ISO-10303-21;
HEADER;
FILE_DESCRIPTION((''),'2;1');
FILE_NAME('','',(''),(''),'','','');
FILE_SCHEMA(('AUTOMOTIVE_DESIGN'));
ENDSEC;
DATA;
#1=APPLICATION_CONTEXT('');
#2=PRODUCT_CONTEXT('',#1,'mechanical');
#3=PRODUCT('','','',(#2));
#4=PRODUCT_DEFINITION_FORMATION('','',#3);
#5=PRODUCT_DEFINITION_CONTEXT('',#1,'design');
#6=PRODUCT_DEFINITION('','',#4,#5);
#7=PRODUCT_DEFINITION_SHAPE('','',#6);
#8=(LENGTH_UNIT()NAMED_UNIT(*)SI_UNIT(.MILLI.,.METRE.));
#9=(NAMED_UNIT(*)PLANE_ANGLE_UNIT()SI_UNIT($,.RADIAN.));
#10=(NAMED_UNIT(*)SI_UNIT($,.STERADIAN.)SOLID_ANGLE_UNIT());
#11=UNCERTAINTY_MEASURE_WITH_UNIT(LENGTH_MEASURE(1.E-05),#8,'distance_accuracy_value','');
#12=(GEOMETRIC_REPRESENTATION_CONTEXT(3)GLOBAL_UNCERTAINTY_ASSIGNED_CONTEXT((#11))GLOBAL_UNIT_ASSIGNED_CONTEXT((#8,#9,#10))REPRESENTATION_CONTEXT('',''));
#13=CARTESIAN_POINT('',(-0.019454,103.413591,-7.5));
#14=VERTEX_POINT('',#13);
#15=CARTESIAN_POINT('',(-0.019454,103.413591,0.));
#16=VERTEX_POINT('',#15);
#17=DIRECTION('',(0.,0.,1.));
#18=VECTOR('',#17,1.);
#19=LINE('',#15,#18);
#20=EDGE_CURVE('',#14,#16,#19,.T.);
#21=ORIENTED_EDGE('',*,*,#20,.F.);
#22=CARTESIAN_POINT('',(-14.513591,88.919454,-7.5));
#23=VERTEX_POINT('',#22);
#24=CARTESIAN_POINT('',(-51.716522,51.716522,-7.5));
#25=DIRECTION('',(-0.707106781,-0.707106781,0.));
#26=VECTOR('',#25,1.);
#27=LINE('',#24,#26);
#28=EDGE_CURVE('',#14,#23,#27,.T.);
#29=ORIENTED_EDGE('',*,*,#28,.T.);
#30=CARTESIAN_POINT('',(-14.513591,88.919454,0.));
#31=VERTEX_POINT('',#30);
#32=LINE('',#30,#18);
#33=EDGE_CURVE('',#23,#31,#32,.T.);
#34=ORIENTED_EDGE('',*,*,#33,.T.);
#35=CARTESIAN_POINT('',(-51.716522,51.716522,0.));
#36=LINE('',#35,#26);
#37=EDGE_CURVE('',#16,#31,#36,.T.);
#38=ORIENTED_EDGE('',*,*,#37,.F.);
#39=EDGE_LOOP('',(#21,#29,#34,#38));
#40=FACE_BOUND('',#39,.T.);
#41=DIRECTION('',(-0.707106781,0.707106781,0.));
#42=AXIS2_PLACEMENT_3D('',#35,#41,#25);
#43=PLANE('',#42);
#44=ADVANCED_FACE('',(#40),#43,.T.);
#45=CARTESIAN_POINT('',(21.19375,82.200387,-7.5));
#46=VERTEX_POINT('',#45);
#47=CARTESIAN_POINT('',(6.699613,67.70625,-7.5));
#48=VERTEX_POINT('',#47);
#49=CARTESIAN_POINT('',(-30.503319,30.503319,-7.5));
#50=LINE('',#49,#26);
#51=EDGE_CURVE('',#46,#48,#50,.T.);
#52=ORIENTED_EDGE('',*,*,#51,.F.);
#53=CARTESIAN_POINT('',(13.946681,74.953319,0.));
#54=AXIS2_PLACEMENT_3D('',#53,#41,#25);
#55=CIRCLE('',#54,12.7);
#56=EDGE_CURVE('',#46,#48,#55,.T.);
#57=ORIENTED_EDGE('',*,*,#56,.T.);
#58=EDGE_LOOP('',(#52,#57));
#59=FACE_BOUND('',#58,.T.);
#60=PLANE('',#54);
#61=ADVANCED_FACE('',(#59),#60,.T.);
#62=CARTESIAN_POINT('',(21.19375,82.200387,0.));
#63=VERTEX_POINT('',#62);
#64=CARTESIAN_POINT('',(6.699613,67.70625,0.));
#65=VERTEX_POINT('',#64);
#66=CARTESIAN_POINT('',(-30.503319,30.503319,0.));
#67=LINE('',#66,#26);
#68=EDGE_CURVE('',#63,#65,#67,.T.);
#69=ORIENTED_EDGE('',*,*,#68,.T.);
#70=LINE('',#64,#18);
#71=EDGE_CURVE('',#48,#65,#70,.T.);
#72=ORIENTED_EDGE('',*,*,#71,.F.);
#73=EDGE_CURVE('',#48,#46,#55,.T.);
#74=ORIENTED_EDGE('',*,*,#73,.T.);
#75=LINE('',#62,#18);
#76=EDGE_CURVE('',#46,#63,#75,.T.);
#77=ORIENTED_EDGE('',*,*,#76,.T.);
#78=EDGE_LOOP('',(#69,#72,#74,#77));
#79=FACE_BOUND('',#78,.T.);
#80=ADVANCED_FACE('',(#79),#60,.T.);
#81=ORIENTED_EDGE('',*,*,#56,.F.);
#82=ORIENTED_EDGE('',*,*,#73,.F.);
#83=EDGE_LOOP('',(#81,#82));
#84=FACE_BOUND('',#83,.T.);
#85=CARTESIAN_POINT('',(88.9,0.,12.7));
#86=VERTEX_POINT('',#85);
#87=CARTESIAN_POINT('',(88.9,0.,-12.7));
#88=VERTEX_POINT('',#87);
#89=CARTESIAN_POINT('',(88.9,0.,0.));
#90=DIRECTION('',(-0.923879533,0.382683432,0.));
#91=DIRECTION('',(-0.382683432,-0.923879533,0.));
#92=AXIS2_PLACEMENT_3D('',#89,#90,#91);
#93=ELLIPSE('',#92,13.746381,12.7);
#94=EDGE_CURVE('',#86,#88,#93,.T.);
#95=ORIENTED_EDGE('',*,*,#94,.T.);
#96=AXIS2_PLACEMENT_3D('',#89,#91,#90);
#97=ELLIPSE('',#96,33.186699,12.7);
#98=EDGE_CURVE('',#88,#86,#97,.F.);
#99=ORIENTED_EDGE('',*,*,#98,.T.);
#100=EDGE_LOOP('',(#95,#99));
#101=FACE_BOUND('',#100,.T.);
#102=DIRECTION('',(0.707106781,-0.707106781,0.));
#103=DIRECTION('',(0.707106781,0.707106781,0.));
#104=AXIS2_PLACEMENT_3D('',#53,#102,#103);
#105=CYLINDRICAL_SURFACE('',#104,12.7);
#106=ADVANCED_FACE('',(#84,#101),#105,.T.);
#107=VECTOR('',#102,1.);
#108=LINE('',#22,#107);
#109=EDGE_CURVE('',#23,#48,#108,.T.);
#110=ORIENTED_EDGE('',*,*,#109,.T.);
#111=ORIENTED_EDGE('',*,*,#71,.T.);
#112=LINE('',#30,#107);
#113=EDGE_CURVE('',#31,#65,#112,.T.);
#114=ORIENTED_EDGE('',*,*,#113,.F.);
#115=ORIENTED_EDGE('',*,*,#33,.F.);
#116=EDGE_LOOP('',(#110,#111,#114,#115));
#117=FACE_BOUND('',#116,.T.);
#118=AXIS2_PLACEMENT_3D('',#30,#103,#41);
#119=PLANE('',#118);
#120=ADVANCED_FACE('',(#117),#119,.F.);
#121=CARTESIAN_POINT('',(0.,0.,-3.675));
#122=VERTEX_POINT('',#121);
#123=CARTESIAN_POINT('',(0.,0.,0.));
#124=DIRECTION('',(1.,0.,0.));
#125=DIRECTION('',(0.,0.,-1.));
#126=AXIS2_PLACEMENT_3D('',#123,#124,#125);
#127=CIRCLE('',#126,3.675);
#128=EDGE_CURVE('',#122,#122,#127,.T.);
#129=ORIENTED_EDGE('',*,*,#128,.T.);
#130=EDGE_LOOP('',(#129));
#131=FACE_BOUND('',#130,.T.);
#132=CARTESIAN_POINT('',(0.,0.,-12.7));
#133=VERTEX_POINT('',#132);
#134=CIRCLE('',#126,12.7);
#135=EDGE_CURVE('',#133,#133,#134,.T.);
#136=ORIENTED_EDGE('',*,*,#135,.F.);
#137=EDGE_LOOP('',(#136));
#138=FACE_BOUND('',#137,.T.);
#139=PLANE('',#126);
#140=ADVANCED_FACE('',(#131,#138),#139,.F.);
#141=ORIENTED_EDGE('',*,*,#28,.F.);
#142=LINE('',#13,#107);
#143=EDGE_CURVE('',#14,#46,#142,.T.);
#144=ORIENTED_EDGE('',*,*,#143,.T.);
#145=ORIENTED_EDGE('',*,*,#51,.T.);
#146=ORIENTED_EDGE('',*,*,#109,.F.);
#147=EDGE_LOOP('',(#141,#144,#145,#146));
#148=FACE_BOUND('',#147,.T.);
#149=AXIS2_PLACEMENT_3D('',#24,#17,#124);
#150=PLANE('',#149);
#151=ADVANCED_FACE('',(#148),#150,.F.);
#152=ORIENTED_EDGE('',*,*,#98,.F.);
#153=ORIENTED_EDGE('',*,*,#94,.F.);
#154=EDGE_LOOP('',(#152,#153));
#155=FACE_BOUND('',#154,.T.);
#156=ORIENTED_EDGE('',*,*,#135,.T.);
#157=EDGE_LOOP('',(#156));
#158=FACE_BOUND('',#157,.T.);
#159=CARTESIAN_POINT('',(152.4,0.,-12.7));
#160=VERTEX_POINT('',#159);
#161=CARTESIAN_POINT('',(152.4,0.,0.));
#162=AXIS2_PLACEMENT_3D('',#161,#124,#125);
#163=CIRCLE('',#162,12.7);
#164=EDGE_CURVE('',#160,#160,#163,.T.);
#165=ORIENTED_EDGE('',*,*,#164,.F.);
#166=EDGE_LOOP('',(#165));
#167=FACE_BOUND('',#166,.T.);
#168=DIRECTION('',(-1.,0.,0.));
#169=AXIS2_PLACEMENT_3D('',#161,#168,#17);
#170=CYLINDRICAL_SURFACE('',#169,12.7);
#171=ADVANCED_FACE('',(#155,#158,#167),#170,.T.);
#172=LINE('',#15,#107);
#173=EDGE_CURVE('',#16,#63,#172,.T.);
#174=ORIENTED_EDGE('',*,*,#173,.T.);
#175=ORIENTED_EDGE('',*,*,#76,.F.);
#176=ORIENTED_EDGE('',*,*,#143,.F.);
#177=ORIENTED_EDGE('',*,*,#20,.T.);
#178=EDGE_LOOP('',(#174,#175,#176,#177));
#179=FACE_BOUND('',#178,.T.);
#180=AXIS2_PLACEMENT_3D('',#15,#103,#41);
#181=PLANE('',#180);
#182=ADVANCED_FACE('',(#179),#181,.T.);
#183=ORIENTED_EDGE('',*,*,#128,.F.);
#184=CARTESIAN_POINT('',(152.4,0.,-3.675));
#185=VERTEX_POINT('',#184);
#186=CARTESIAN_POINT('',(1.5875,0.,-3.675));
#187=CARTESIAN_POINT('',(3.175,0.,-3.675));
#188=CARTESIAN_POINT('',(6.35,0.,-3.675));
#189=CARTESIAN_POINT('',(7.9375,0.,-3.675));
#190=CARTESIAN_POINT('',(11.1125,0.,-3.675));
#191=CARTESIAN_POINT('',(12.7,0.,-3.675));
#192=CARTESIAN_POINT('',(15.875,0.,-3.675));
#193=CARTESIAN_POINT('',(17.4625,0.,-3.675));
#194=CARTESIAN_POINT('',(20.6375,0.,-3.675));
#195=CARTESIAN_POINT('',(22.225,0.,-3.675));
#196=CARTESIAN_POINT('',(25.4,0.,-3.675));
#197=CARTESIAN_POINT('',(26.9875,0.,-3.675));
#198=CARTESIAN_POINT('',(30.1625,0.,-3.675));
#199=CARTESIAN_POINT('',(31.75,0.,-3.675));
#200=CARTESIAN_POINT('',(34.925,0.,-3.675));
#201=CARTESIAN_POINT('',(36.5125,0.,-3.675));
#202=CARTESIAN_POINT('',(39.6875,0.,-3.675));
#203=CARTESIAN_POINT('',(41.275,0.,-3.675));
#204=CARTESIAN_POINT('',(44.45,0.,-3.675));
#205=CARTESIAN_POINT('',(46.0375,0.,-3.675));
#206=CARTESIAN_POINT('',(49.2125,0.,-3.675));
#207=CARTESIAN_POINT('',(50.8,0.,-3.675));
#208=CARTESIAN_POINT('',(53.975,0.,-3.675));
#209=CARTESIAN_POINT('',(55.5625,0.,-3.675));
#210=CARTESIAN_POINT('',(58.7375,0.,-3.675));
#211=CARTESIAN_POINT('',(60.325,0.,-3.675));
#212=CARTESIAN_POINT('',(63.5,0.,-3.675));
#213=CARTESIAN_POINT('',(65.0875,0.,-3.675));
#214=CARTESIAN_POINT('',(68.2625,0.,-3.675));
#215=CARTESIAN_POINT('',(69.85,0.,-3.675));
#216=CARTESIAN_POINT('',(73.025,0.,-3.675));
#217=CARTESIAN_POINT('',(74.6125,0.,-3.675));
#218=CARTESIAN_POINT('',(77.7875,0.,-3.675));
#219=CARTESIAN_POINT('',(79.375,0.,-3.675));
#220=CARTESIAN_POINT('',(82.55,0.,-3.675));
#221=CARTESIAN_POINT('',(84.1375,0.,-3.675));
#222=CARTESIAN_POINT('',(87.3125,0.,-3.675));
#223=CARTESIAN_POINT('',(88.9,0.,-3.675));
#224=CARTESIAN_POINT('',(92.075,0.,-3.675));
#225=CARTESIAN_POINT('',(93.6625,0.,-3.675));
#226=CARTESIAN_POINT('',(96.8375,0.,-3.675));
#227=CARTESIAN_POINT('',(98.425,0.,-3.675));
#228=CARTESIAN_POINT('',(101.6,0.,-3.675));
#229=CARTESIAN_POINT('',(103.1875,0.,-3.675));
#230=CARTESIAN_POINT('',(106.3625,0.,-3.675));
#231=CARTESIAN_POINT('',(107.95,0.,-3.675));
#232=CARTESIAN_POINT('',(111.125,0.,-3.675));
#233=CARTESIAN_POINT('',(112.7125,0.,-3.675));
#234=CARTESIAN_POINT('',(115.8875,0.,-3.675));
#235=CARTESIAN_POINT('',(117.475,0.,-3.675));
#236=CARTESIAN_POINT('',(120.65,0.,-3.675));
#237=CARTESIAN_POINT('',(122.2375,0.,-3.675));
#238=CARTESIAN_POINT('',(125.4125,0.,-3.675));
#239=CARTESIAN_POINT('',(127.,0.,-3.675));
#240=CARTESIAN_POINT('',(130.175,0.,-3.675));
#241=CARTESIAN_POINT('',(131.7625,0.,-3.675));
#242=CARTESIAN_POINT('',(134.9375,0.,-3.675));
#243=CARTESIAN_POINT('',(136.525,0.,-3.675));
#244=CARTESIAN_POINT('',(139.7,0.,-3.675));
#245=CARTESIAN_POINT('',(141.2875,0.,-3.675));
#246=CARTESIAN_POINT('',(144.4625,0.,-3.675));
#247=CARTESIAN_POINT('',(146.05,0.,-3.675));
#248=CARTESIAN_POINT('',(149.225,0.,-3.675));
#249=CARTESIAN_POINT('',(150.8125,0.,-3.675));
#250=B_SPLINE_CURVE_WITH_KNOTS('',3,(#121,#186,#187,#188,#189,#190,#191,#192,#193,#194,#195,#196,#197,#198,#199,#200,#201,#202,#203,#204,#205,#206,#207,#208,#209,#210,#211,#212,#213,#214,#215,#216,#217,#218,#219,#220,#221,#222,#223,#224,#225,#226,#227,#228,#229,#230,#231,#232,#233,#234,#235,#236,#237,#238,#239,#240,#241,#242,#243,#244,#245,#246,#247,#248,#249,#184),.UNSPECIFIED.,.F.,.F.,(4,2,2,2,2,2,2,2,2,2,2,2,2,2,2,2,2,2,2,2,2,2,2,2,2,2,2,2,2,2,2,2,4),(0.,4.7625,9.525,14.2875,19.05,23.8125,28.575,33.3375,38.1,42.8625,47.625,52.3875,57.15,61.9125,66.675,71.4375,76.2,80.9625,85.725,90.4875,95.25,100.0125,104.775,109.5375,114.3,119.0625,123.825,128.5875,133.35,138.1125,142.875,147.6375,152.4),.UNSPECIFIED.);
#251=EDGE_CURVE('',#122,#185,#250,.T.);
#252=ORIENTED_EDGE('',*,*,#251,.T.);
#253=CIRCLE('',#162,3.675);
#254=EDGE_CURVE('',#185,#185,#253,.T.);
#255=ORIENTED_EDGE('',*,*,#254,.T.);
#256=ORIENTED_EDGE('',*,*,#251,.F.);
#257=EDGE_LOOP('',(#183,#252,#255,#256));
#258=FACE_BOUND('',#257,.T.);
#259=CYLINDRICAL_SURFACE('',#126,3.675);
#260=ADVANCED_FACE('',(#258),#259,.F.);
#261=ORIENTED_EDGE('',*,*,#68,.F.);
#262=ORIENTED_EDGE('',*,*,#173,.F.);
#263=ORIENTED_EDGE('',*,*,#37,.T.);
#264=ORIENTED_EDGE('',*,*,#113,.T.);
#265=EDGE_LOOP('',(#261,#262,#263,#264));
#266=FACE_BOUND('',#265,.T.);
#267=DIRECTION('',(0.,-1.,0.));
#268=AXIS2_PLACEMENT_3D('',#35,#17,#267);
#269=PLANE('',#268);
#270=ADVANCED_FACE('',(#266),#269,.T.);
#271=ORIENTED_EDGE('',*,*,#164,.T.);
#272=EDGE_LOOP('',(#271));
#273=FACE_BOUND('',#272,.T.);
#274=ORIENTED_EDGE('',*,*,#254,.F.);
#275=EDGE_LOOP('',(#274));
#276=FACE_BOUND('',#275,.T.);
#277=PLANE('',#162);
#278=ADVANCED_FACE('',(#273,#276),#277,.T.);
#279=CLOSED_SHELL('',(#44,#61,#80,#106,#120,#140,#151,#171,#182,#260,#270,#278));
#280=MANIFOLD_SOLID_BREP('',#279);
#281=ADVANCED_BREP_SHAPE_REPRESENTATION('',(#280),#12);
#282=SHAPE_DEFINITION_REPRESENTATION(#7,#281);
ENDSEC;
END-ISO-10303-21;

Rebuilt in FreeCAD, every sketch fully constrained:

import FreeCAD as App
import Part
import Sketcher

V = App.Vector

doc = App.newDocument("Part")
params = doc.addObject("Spreadsheet::Sheet", "Params")
for row, (alias, value) in enumerate([
    ("sketch1_diameter", "25.4 mm"),
    ("pad1_length", "152.4 mm"),
    ("sketch2_diameter", "25.4 mm"),
    ("pad2_length", "106 mm"),
    ("sketch3_width", "7.5 mm"),
    ("pad3_length", "30 mm"),
    ("sketch4_diameter", "7.35 mm"),
    ("pocket1_length", "152.4 mm"),
], start=1):
    params.set(f"A{row}", alias)
    params.set(f"B{row}", "=" + value)
    params.setAlias(f"B{row}", alias)

body = doc.addObject("PartDesign::Body", "Body")

sketch1 = body.newObject("Sketcher::SketchObject", "Sketch")
sketch1.AttachmentSupport = (doc.getObject("YZ_Plane"), [""])
sketch1.MapMode = "FlatFace"
sketch1.addGeometry(Part.Circle(V(0, 0, 0), V(0, 0, 1), 13), False)
sketch1.addConstraint([
    Sketcher.Constraint("Coincident", 0, 3, -1, 1),
    Sketcher.Constraint("Diameter", 0, 25.4),
])
sketch1.setExpression("Constraints[1]", "Params.sketch1_diameter")
pad1 = body.newObject("PartDesign::Pad", "Pad")
pad1.Profile = sketch1
pad1.setExpression("Length", "Params.pad1_length")

sketch2 = body.newObject("Sketcher::SketchObject", "Sketch001")
sketch2.Placement = App.Placement(V(44.45, -44.45, 0), App.Rotation(V(0.707106781, 0.707106781, 0), V(0, 0, -0.999999999), V(-0.707106781, 0.707106781, 0), "ZXY"))
sketch2.addGeometry(Part.Circle(V(63, 0, 0), V(0, 0, 1), 13), False)
sketch2.addConstraint([
    Sketcher.Constraint("PointOnObject", 0, 3, -1),
    Sketcher.Constraint("Diameter", 0, 25.4),
    Sketcher.Constraint("DistanceX", -1, 1, 0, 3, 62.861793),
])
sketch2.setExpression("Constraints[1]", "Params.sketch2_diameter")
pad2 = body.newObject("PartDesign::Pad", "Pad001")
pad2.Profile = sketch2
pad2.setExpression("Length", "Params.pad2_length")

sketch3 = body.newObject("Sketcher::SketchObject", "Sketch002")
sketch3.Placement = App.Placement(V(-30.503319, 30.503319, 0), App.Rotation(V(0, 0, 1), V(0.707106781, 0.707106781, 0), V(-0.707106781, 0.707106781, 0), "ZXY"))
sketch3.addGeometry([
    Part.LineSegment(V(-8, 73, 0), V(-8, 53, 0)),
    Part.LineSegment(V(-8, 53, 0), V(0, 53, 0)),
    Part.LineSegment(V(0, 53, 0), V(0, 73, 0)),
    Part.LineSegment(V(0, 73, 0), V(-8, 73, 0)),
], False)
sketch3.addConstraint([
    Sketcher.Constraint("Coincident", 0, 2, 1, 1),
    Sketcher.Constraint("Coincident", 1, 2, 2, 1),
    Sketcher.Constraint("Coincident", 2, 2, 3, 1),
    Sketcher.Constraint("Coincident", 3, 2, 0, 1),
    Sketcher.Constraint("Vertical", 0),
    Sketcher.Constraint("Horizontal", 1),
    Sketcher.Constraint("Vertical", 2),
    Sketcher.Constraint("Horizontal", 3),
    Sketcher.Constraint("PointOnObject", 1, 2, -2),
    Sketcher.Constraint("DistanceX", 1, 1, 1, 2, 7.5),
    Sketcher.Constraint("DistanceY", 0, 2, 0, 1, 20.497805),
    Sketcher.Constraint("DistanceY", -1, 1, 0, 2, 52.61289),
])
sketch3.setExpression("Constraints[9]", "Params.sketch3_width")
pad3 = body.newObject("PartDesign::Pad", "Pad002")
pad3.Profile = sketch3
pad3.setExpression("Length", "Params.pad3_length")

sketch4 = body.newObject("Sketcher::SketchObject", "Sketch003")
sketch4.AttachmentSupport = (doc.getObject("YZ_Plane"), [""])
sketch4.MapMode = "FlatFace"
sketch4.AttachmentOffset = App.Placement(V(0, 0, 152.4), App.Rotation())
sketch4.addGeometry(Part.Circle(V(0, 0, 0), V(0, 0, 1), 3.7), False)
sketch4.addConstraint([
    Sketcher.Constraint("Coincident", 0, 3, -1, 1),
    Sketcher.Constraint("Diameter", 0, 7.35),
])
sketch4.setExpression("Constraints[1]", "Params.sketch4_diameter")
pocket1 = body.newObject("PartDesign::Pocket", "Pocket")
pocket1.Profile = sketch4
pocket1.setExpression("Length", "Params.pocket1_length")

doc.recompute()
